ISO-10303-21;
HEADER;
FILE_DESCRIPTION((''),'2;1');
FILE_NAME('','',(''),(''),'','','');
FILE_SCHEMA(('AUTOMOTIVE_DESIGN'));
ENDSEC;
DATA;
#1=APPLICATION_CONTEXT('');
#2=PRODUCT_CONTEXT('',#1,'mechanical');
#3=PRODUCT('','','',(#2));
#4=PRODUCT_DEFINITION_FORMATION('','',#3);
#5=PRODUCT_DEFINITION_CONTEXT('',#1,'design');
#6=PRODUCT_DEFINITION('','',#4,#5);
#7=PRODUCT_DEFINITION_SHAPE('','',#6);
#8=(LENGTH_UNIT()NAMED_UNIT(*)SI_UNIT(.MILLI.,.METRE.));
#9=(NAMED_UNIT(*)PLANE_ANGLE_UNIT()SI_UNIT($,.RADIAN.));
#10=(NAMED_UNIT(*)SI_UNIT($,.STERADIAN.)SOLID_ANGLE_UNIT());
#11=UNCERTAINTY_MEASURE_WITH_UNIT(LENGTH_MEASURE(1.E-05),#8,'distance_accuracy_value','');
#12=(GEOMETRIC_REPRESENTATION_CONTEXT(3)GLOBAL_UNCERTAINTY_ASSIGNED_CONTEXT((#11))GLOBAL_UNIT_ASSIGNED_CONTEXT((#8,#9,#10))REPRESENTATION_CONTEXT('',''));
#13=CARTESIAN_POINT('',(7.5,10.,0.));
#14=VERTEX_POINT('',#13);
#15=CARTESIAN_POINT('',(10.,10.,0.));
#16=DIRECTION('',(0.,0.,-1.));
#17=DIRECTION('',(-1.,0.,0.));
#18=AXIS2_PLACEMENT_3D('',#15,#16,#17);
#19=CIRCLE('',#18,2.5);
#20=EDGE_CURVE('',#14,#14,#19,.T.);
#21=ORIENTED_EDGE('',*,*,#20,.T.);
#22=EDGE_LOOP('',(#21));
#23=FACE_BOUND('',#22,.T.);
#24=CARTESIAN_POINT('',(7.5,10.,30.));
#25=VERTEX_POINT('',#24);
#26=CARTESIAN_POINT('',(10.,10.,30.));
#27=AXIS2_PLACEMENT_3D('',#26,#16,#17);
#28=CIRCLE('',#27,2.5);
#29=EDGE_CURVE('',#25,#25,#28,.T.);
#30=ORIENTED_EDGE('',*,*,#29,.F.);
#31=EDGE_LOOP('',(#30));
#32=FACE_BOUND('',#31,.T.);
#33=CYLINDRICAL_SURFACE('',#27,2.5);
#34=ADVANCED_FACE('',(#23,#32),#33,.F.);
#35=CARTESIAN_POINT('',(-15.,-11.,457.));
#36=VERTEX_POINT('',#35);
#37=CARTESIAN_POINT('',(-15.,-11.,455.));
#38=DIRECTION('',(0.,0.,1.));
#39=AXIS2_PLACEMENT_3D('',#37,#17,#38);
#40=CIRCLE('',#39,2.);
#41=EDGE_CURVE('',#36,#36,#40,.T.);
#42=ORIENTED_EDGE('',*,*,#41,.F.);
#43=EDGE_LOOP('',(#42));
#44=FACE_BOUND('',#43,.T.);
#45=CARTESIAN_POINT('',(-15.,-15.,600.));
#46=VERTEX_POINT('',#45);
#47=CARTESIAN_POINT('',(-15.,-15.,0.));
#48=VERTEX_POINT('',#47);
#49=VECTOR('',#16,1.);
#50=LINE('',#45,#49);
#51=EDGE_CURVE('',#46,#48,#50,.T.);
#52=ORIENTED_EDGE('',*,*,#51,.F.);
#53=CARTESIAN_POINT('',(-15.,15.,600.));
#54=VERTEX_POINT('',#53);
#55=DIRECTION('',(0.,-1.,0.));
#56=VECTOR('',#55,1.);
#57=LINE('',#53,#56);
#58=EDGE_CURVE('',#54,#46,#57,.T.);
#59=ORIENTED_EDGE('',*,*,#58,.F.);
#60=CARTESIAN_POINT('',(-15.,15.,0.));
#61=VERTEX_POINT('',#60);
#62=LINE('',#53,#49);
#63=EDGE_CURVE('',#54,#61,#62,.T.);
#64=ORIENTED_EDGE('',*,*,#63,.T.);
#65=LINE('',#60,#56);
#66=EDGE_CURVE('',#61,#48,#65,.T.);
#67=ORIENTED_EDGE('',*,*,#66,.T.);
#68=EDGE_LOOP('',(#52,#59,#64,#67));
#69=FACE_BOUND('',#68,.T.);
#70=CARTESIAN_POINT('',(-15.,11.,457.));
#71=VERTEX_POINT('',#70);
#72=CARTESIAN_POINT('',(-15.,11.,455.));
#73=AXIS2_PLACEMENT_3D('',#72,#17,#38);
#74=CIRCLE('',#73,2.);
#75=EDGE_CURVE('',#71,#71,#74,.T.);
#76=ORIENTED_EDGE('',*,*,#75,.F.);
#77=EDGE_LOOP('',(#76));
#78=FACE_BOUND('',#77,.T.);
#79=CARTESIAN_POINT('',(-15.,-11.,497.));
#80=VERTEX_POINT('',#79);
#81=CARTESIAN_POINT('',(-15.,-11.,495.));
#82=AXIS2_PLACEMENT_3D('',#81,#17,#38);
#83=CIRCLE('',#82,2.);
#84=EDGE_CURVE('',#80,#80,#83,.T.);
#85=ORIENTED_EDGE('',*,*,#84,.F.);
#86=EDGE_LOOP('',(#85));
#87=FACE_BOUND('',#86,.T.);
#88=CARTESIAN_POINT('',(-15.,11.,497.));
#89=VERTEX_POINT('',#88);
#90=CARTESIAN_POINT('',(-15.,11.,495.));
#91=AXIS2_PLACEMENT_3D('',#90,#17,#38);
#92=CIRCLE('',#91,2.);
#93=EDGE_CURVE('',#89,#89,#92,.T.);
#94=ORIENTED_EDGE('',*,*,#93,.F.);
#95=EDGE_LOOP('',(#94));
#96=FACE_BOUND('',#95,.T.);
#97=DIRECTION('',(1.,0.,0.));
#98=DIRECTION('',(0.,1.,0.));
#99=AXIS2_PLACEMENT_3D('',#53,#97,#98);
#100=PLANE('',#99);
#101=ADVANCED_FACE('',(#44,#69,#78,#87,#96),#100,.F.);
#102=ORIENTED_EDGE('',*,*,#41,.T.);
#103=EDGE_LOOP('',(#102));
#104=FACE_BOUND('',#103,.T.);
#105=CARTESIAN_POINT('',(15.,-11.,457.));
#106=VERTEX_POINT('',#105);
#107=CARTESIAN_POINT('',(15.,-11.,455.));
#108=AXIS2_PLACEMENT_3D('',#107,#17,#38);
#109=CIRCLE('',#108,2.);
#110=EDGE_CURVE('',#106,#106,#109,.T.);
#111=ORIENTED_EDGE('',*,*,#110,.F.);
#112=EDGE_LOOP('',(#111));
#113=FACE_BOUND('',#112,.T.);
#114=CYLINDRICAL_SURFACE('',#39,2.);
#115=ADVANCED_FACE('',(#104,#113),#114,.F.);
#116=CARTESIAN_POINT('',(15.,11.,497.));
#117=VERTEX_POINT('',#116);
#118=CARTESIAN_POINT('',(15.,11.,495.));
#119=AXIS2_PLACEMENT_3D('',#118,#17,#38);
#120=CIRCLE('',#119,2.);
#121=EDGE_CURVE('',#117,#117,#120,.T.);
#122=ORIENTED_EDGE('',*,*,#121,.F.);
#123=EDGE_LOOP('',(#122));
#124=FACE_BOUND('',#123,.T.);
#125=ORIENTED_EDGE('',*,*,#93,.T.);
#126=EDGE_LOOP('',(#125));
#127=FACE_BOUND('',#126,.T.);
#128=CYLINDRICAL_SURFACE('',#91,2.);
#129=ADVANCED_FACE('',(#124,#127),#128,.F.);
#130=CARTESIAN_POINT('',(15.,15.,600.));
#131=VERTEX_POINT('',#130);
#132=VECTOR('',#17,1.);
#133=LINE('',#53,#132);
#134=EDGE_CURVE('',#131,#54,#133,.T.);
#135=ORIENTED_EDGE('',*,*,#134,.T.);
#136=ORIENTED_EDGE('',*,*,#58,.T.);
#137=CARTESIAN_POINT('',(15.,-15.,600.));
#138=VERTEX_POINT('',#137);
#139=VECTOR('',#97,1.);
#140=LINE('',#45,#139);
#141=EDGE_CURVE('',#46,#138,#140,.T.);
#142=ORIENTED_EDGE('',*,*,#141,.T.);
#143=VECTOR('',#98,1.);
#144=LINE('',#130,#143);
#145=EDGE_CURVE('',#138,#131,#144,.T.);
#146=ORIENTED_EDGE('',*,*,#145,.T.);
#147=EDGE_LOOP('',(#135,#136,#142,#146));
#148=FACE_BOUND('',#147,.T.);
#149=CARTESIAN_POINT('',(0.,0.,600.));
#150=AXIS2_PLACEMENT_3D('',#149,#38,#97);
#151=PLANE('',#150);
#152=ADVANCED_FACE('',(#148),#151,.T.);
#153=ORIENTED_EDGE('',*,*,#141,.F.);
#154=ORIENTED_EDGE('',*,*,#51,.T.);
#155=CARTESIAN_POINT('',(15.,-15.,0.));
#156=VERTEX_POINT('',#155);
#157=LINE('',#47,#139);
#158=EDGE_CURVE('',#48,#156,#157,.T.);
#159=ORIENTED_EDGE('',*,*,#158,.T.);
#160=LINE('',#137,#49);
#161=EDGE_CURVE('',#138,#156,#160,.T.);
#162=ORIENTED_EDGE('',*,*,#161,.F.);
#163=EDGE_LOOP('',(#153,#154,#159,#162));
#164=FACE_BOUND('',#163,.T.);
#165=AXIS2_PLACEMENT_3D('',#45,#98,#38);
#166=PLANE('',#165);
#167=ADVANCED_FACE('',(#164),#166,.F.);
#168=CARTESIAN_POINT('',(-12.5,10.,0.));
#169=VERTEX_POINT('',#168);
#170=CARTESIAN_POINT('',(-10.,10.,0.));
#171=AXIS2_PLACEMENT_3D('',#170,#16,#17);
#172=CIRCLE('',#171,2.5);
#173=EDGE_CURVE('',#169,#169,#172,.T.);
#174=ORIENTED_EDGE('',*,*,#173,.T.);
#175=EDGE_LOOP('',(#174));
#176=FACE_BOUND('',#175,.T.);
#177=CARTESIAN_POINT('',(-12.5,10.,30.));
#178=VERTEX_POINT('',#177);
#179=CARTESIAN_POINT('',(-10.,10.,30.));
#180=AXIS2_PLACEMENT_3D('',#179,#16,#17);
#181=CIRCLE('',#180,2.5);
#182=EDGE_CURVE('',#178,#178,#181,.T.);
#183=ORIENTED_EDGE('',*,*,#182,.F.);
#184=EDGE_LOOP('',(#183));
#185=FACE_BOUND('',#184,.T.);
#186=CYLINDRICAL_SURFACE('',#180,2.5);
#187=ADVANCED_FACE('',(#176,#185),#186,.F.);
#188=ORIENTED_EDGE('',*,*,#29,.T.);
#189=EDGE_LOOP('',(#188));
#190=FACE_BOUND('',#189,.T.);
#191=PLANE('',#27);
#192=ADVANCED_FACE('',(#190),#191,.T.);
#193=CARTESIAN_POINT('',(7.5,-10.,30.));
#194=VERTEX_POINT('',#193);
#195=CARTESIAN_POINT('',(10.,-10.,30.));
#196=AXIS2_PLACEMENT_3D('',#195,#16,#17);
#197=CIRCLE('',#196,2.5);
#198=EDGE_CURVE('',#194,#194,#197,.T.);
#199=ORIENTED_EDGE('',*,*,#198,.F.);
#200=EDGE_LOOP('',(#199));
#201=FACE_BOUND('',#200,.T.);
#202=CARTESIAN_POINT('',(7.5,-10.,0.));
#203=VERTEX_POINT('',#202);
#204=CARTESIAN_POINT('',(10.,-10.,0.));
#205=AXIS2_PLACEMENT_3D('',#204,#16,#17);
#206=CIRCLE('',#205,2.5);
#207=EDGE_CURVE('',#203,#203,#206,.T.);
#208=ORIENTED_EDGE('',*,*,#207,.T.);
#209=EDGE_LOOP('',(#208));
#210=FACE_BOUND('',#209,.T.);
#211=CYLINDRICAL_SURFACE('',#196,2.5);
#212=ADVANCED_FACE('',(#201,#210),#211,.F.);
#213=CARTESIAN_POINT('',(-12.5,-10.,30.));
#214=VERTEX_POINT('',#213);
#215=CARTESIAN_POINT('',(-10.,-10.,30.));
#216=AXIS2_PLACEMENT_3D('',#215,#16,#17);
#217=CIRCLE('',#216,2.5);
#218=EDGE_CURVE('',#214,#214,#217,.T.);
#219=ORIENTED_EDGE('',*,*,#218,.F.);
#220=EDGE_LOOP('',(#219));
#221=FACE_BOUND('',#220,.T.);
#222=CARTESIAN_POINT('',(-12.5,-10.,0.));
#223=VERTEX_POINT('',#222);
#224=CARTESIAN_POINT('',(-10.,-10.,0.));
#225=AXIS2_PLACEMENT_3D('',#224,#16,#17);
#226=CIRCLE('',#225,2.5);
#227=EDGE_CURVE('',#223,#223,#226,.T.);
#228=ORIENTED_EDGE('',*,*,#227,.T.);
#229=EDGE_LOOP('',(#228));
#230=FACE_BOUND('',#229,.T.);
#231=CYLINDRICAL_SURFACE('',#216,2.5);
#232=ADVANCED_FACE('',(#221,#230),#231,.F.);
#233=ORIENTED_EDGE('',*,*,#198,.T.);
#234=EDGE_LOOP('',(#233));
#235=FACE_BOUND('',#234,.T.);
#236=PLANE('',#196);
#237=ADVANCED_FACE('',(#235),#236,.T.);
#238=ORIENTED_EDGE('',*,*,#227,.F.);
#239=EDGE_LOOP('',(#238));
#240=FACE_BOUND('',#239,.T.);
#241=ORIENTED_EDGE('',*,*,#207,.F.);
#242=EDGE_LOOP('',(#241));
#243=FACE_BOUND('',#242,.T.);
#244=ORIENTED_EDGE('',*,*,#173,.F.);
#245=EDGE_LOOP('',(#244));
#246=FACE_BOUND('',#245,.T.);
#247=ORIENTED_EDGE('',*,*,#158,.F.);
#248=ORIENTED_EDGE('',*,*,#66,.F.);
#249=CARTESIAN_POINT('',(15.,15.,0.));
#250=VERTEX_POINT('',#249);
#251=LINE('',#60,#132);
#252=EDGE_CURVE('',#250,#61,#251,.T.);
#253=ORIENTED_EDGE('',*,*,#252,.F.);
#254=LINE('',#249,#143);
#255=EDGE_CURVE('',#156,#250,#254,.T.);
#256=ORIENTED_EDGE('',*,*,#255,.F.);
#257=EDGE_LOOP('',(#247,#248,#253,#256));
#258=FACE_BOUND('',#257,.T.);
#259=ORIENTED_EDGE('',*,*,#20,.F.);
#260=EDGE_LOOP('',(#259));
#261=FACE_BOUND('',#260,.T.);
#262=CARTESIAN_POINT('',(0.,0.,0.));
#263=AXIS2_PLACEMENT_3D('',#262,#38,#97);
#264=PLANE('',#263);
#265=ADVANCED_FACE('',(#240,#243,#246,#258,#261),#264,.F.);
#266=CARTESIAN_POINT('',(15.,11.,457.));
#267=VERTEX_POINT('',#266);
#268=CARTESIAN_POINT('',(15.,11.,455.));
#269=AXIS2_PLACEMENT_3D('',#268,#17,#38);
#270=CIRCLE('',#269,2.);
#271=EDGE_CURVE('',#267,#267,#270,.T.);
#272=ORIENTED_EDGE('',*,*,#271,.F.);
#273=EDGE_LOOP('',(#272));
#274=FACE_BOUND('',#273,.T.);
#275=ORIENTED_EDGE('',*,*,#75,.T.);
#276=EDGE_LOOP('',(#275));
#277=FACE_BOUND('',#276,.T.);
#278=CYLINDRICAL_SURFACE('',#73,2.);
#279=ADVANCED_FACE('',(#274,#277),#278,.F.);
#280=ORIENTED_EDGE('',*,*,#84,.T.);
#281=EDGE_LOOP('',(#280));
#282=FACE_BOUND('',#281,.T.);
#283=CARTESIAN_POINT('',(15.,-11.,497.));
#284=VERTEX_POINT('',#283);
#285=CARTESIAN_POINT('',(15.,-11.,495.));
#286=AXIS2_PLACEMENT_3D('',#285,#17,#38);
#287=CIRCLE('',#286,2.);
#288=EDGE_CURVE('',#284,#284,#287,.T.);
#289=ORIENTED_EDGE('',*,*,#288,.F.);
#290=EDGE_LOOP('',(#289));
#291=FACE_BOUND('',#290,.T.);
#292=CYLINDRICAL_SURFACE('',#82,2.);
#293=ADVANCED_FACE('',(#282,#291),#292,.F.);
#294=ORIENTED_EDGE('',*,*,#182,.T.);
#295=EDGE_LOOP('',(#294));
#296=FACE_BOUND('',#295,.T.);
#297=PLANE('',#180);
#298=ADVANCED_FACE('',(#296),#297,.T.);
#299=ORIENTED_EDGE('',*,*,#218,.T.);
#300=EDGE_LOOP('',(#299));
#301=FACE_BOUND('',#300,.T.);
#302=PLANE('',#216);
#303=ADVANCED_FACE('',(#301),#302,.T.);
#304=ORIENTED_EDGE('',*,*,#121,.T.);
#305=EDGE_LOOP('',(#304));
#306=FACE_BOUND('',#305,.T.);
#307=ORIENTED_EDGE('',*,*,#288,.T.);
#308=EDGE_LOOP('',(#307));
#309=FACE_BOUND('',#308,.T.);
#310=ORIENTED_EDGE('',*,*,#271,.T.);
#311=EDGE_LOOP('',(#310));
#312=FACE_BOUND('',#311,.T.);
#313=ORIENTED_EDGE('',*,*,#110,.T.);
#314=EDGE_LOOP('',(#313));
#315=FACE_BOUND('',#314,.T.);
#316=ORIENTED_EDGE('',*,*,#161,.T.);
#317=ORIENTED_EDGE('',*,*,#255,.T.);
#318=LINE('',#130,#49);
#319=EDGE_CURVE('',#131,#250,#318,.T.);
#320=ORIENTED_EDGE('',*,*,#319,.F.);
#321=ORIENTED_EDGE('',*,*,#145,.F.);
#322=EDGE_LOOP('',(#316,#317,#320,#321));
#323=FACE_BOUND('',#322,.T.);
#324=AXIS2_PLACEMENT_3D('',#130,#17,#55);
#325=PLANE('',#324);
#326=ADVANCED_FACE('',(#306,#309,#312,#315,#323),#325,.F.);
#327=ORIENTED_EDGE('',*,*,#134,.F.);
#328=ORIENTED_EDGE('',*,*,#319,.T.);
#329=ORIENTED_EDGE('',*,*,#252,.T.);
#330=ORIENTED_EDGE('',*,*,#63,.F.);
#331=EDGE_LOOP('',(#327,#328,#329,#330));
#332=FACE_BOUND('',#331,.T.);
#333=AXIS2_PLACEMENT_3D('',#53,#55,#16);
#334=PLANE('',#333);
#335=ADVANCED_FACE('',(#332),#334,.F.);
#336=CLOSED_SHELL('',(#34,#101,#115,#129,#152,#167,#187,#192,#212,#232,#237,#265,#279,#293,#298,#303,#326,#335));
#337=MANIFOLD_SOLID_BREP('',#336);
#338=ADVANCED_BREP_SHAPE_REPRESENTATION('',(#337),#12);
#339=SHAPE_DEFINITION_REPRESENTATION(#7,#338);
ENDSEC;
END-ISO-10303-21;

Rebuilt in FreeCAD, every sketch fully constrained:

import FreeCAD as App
import Part
import Sketcher


def add_polygon(sketch, points):
    """Adds a closed chain of lines whose ends are joined by coincident constraints."""
    first, n = sketch.GeometryCount, len(points)
    for a, b in zip(points, points[1:] + points[:1]):
        sketch.addGeometry(Part.LineSegment(App.Vector(*a, 0), App.Vector(*b, 0)), False)
    for i in range(n):
        sketch.addConstraint(Sketcher.Constraint("Coincident", first + i, 2, first + (i + 1) % n, 1))

doc = App.newDocument("Part")
body = doc.addObject("PartDesign::Body", "Body")

sketch1 = body.newObject("Sketcher::SketchObject", "Sketch")
sketch1.AttachmentSupport = (doc.getObject("XY_Plane"), [""])
sketch1.MapMode = "FlatFace"
add_polygon(sketch1, [(-15, 15), (-15, -15), (15, -15), (15, 15)])
sketch1.addConstraint(Sketcher.Constraint("Vertical", 0))
sketch1.addConstraint(Sketcher.Constraint("Horizontal", 1))
sketch1.addConstraint(Sketcher.Constraint("Vertical", 2))
sketch1.addConstraint(Sketcher.Constraint("Horizontal", 3))
sketch1.addConstraint(Sketcher.Constraint("Symmetric", 0, 2, 2, 2, -1, 1))
sketch1.addConstraint(Sketcher.Constraint("Equal", 3, 0))
sketch1.addConstraint(Sketcher.Constraint("DistanceX", 1, 1, 1, 2, 30.0))
pad1 = body.newObject("PartDesign::Pad", "Pad")
pad1.Profile = sketch1
pad1.Length = 600

sketch2 = body.newObject("Sketcher::SketchObject", "Sketch001")
sketch2.AttachmentSupport = (doc.getObject("XY_Plane"), [""])
sketch2.MapMode = "FlatFace"
sketch2.addGeometry(Part.Circle(App.Vector(10, 10, 0), App.Vector(0, 0, 1), 2.5), False)
sketch2.addGeometry(Part.Circle(App.Vector(-10, 10, 0), App.Vector(0, 0, 1), 2.5), False)
sketch2.addGeometry(Part.Circle(App.Vector(-10, -10, 0), App.Vector(0, 0, 1), 2.5), False)
sketch2.addGeometry(Part.Circle(App.Vector(10, -10, 0), App.Vector(0, 0, 1), 2.5), False)
sketch2.addConstraint(Sketcher.Constraint("Equal", 0, 1))
sketch2.addConstraint(Sketcher.Constraint("Equal", 1, 2))
sketch2.addConstraint(Sketcher.Constraint("Equal", 2, 3))
sketch2.addConstraint(Sketcher.Constraint("Symmetric", 0, 3, 2, 3, -1, 1))
sketch2.addConstraint(Sketcher.Constraint("Symmetric", 1, 3, 3, 3, -1, 1))
sketch2.addConstraint(Sketcher.Constraint("Symmetric", 0, 3, 1, 3, -2))
sketch2.addConstraint(Sketcher.Constraint("Diameter", 0, 5.0))
sketch2.addConstraint(Sketcher.Constraint("DistanceX", -1, 1, 0, 3, 10.0))
sketch2.addConstraint(Sketcher.Constraint("DistanceY", -1, 1, 0, 3, 10.0))
pocket1 = body.newObject("PartDesign::Pocket", "Pocket")
pocket1.Profile = sketch2
pocket1.Length = 30
pocket1.Reversed = True

sketch3 = body.newObject("Sketcher::SketchObject", "Sketch002")
sketch3.AttachmentSupport = (doc.getObject("YZ_Plane"), [""])
sketch3.MapMode = "FlatFace"
sketch3.AttachmentOffset = App.Placement(App.Vector(0, 0, -15), App.Rotation())
sketch3.addGeometry(Part.Circle(App.Vector(11, 495, 0), App.Vector(0, 0, 1), 2), False)
sketch3.addGeometry(Part.Circle(App.Vector(11, 455, 0), App.Vector(0, 0, 1), 2), False)
sketch3.addGeometry(Part.Circle(App.Vector(-11, 455, 0), App.Vector(0, 0, 1), 2), False)
sketch3.addGeometry(Part.Circle(App.Vector(-11, 495, 0), App.Vector(0, 0, 1), 2), False)
sketch3.addConstraint(Sketcher.Constraint("Equal", 0, 1))
sketch3.addConstraint(Sketcher.Constraint("Equal", 1, 2))
sketch3.addConstraint(Sketcher.Constraint("Equal", 2, 3))
sketch3.addConstraint(Sketcher.Constraint("Symmetric", 1, 3, 2, 3, -2))
sketch3.addConstraint(Sketcher.Constraint("Symmetric", 0, 3, 3, 3, -2))
sketch3.addConstraint(Sketcher.Constraint("Vertical", 0, 3, 1, 3))
sketch3.addConstraint(Sketcher.Constraint("Diameter", 0, 4.0))
sketch3.addConstraint(Sketcher.Constraint("DistanceX", -1, 1, 0, 3, 11.0))
sketch3.addConstraint(Sketcher.Constraint("DistanceY", -1, 1, 0, 3, 495.0))
sketch3.addConstraint(Sketcher.Constraint("DistanceY", -1, 1, 1, 3, 455.0))
doc.recompute()
hole = body.newObject("PartDesign::Hole", "Hole")
hole.Profile = sketch3
hole.ThreadType = "None"
hole.Diameter = 4
hole.DepthType = "ThroughAll"
hole.Reversed = True

doc.recompute()
